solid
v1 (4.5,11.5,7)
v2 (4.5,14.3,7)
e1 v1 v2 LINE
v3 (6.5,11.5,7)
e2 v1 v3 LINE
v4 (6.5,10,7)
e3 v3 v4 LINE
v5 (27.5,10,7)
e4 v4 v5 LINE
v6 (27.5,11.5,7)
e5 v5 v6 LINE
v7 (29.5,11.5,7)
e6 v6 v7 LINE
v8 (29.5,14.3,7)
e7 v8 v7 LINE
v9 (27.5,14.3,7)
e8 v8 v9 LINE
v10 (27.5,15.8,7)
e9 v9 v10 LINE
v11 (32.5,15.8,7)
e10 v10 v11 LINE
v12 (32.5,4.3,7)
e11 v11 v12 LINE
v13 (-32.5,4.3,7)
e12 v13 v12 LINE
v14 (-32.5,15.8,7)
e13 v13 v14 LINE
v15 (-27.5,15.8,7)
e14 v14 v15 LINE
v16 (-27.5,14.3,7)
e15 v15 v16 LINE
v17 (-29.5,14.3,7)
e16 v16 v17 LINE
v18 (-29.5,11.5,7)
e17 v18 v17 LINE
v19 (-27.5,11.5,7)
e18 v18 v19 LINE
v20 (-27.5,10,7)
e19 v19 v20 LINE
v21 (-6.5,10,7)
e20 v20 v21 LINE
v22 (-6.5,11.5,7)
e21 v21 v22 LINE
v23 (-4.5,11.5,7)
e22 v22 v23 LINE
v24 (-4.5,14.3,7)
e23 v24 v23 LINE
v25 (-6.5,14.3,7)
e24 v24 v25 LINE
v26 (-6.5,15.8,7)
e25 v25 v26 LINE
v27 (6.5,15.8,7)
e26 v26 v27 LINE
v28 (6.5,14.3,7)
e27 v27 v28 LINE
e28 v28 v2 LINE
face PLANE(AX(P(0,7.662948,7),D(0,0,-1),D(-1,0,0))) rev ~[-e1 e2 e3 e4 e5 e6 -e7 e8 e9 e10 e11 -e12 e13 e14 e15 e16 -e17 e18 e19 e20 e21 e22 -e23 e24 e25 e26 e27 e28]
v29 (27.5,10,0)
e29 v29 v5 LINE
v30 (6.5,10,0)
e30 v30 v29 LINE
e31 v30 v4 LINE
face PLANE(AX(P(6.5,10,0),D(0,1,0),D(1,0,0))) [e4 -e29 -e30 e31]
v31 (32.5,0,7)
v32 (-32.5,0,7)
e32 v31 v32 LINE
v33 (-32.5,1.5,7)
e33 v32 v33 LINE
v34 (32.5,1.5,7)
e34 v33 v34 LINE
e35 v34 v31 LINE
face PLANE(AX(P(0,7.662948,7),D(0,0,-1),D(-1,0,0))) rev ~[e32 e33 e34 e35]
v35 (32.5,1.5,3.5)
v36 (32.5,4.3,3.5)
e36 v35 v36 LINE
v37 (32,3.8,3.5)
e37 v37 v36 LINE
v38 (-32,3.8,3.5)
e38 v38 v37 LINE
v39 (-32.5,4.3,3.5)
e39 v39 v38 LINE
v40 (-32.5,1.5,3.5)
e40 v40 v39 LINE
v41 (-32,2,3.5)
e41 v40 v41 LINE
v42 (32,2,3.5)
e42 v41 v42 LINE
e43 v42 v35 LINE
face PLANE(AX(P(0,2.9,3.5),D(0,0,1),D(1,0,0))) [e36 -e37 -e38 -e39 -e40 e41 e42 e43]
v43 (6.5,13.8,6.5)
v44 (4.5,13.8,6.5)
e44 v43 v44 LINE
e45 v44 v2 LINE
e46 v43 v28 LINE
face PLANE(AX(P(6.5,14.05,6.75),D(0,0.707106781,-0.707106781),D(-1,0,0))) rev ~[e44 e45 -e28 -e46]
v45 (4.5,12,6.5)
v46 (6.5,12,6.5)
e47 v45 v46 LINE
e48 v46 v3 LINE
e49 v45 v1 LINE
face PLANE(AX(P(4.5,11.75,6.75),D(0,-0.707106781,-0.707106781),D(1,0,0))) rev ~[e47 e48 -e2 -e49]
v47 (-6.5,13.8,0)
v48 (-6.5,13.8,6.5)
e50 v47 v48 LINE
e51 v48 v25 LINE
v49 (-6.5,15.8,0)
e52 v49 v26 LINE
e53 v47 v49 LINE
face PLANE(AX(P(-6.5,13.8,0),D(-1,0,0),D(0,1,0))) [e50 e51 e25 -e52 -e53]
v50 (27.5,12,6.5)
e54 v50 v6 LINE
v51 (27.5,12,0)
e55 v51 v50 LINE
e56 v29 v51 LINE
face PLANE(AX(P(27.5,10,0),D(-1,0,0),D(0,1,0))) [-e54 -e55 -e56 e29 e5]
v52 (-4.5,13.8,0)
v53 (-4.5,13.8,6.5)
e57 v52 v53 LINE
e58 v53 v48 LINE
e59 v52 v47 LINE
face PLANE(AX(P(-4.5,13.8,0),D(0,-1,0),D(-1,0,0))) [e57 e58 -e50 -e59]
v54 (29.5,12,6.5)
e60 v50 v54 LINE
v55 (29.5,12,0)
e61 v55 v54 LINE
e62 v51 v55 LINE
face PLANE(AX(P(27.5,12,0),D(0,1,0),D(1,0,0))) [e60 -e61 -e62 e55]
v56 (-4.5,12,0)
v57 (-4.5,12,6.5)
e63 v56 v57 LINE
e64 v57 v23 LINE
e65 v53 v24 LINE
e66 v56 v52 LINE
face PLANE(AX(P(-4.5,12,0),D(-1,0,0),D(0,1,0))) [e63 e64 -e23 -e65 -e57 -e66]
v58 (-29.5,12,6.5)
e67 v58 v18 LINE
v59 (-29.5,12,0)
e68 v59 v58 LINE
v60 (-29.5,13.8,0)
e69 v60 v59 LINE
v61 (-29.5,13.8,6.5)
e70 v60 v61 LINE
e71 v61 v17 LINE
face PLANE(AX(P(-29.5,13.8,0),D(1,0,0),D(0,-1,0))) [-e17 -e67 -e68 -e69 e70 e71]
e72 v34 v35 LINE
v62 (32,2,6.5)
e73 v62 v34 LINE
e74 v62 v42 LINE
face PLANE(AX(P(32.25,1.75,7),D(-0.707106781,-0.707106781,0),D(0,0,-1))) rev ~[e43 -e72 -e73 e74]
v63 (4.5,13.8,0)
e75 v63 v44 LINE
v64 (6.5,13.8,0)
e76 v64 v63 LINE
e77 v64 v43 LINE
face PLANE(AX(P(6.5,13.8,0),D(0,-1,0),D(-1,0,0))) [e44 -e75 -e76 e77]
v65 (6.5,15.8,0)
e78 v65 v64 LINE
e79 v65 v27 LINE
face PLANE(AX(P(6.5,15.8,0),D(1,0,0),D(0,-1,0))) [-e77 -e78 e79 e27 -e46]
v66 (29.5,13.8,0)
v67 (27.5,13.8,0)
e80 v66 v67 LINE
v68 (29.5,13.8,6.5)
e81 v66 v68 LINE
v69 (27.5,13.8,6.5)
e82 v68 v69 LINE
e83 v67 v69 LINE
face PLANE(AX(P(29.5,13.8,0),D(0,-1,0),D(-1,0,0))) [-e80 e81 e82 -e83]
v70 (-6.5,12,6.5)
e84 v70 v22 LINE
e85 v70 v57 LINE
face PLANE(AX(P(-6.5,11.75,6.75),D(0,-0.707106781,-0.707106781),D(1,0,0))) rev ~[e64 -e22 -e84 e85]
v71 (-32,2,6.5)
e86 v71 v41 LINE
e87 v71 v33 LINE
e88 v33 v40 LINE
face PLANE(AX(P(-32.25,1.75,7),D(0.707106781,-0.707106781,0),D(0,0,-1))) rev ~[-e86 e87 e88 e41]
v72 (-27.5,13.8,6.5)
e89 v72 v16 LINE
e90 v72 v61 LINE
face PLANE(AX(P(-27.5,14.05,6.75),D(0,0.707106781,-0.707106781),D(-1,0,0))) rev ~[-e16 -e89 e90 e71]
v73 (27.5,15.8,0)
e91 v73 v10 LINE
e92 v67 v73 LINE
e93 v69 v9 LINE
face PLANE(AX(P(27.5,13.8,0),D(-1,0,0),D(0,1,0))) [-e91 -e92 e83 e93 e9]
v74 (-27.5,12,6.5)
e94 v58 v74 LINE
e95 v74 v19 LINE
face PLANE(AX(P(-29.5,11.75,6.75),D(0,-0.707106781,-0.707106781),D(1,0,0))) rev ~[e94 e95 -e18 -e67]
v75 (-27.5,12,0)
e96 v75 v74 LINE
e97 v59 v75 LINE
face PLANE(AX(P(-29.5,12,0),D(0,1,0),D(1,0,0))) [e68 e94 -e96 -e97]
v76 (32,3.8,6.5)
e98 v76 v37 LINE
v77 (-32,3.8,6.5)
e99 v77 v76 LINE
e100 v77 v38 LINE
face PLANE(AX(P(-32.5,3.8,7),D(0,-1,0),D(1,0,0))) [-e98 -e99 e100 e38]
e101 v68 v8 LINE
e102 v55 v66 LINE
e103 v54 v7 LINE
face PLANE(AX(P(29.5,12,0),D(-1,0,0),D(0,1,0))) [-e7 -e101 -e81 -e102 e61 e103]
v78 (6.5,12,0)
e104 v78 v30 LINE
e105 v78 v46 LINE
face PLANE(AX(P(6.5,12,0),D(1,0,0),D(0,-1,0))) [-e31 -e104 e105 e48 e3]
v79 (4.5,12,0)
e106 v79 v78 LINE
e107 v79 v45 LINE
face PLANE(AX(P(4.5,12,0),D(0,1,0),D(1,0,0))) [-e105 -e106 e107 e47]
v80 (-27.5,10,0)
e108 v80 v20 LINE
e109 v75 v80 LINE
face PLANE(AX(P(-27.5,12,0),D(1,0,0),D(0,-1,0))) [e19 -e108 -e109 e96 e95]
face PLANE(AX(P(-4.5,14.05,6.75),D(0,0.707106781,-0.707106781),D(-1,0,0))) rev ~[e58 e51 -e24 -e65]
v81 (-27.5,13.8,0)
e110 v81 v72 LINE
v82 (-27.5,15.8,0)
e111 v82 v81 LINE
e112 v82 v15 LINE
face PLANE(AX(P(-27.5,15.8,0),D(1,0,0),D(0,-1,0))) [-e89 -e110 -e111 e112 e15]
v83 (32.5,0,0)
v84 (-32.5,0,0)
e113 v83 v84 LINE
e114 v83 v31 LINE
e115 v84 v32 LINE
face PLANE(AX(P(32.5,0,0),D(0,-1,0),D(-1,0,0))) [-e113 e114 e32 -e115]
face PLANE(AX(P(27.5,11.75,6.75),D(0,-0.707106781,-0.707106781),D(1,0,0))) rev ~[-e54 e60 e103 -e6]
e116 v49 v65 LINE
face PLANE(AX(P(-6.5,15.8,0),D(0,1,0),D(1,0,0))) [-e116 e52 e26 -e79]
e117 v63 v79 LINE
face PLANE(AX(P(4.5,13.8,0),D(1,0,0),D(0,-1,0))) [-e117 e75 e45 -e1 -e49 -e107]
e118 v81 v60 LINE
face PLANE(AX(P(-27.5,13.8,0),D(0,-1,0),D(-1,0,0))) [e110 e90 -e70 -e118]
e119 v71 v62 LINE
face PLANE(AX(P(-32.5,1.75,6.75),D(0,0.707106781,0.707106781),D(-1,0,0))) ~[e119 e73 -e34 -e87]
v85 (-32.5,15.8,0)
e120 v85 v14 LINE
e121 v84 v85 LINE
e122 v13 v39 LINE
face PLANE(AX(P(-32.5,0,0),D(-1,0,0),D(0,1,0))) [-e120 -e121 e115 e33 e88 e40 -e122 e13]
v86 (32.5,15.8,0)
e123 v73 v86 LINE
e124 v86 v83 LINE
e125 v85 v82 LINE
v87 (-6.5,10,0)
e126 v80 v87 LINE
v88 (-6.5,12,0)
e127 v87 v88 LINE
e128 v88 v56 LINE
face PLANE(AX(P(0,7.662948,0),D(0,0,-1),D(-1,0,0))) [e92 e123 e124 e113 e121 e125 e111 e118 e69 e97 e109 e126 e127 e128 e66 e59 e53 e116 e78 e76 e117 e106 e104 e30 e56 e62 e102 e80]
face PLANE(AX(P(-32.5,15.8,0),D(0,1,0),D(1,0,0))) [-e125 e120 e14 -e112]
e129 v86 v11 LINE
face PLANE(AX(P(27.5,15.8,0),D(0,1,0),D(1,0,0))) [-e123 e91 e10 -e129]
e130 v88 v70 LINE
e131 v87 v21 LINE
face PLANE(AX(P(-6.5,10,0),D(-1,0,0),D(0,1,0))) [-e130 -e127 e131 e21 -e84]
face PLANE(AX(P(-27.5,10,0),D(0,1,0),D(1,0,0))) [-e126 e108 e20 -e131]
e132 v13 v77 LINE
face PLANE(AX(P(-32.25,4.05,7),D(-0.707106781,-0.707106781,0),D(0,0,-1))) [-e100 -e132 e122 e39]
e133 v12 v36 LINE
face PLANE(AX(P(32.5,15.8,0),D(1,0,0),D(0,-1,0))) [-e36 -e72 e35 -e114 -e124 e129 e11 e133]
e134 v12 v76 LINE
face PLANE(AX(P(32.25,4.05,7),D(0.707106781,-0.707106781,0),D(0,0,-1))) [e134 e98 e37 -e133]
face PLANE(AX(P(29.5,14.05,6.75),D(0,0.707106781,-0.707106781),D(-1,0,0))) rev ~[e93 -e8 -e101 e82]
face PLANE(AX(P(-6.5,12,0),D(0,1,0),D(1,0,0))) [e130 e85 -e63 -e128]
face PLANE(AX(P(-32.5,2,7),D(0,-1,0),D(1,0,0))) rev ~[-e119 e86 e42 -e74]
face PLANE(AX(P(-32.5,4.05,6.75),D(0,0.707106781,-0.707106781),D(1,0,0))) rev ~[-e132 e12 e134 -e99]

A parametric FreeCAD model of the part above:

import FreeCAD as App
import Part
import Sketcher
from FreeCAD import Vector


def edges_at(feature, points):
    """Names of the edges that pass closest to the given points."""
    edges = feature.Shape.Edges
    near = lambda p: min(range(len(edges)), key=lambda i: edges[i].distToShape(Part.Vertex(*p))[0])
    return sorted({f"Edge{near(p) + 1}" for p in points})


def add_polygon(sketch, points):
    """Adds a closed chain of lines whose ends are joined by coincident constraints."""
    first, n = sketch.GeometryCount, len(points)
    for a, b in zip(points, points[1:] + points[:1]):
        sketch.addGeometry(Part.LineSegment(App.Vector(*a, 0), App.Vector(*b, 0)), False)
    for i in range(n):
        sketch.addConstraint(Sketcher.Constraint("Coincident", first + i, 2, first + (i + 1) % n, 1))

doc = App.newDocument("Part")
body = doc.addObject("PartDesign::Body", "Body")

# Sketch on XY plane
sketch1 = doc.addObject("Sketcher::SketchObject", "Sketch")
body.addObject(sketch1)
sketch1.AttachmentSupport = (doc.XY_Plane, [""])
sketch1.MapMode = "FlatFace"
add_polygon(sketch1, [(-32.5, 15.8), (-32.5, 0), (32.5, 0), (32.5, 15.8), (27.5, 15.8), (27.5, 13.8), (29.5, 13.8), (29.5, 12), (27.5, 12), (27.5, 10), (6.5, 10), (6.5, 12), (4.5, 12), (4.5, 13.8), (6.5, 13.8), (6.5, 15.8), (-6.5, 15.8), (-6.5, 13.8), (-4.5, 13.8), (-4.5, 12), (-6.5, 12), (-6.5, 10), (-27.5, 10), (-27.5, 12), (-29.5, 12), (-29.5, 13.8), (-27.5, 13.8), (-27.5, 15.8)])  # lines 0-27
sketch1.addConstraint([
    Sketcher.Constraint("Vertical", 0),
    Sketcher.Constraint("Horizontal", 1),
    Sketcher.Constraint("Vertical", 2),
    Sketcher.Constraint("Horizontal", 3),
    Sketcher.Constraint("Vertical", 4),
    Sketcher.Constraint("Horizontal", 5),
    Sketcher.Constraint("Vertical", 6),
    Sketcher.Constraint("Horizontal", 7),
    Sketcher.Constraint("Vertical", 8),
    Sketcher.Constraint("Horizontal", 9),
    Sketcher.Constraint("Vertical", 10),
    Sketcher.Constraint("Horizontal", 11),
    Sketcher.Constraint("Vertical", 12),
    Sketcher.Constraint("Horizontal", 13),
    Sketcher.Constraint("Vertical", 14),
    Sketcher.Constraint("Horizontal", 15),
    Sketcher.Constraint("Vertical", 16),
    Sketcher.Constraint("Horizontal", 17),
    Sketcher.Constraint("Vertical", 18),
    Sketcher.Constraint("Horizontal", 19),
    Sketcher.Constraint("Vertical", 20),
    Sketcher.Constraint("Horizontal", 21),
    Sketcher.Constraint("Vertical", 22),
    Sketcher.Constraint("Horizontal", 23),
    Sketcher.Constraint("Vertical", 24),
    Sketcher.Constraint("Horizontal", 25),
    Sketcher.Constraint("Vertical", 26),
    Sketcher.Constraint("Horizontal", 27),
    Sketcher.Constraint("Symmetric", 0, 2, 1, 2, -1, 1),
    Sketcher.Constraint("Symmetric", 13, 2, 16, 2, -2),
    Sketcher.Constraint("Symmetric", 11, 2, 18, 2, -2),
    Sketcher.Constraint("Symmetric", 9, 2, 20, 2, -2),
    Sketcher.Constraint("Symmetric", 7, 2, 22, 2, -2),
    Sketcher.Constraint("Symmetric", 5, 2, 24, 2, -2),
    Sketcher.Constraint("Symmetric", 3, 2, 26, 2, -2),
    Sketcher.Constraint("Horizontal", 7, 2, 10, 2),
    Sketcher.Constraint("Horizontal", 5, 2, 12, 2),
    Sketcher.Constraint("Horizontal", 3, 2, 14, 2),
    Sketcher.Constraint("Vertical", 4, 2, 7, 2),
    Sketcher.Constraint("Vertical", 10, 2, 13, 2),
    Sketcher.Constraint("Equal", 7, 11),
    Sketcher.Constraint("Equal", 25, 4),
    Sketcher.Constraint("Equal", 4, 8),
    Sketcher.Constraint("DistanceX", 1, 1, 1, 2, 65.0),
    Sketcher.Constraint("DistanceX", 3, 2, 3, 1, 5.0),
    Sketcher.Constraint("DistanceX", 5, 1, 5, 2, 2.0),
    Sketcher.Constraint("DistanceX", 9, 2, 9, 1, 21.0),
    Sketcher.Constraint("DistanceY", 0, 2, 0, 1, 15.8),
    Sketcher.Constraint("DistanceY", 6, 2, 6, 1, 1.8),
])
pad1 = doc.addObject("PartDesign::Pad", "Pad")
body.addObject(pad1)
pad1.Profile = sketch1
pad1.Length = 7

# Sketch on XY plane
sketch2 = doc.addObject("Sketcher::SketchObject", "Sketch001")
body.addObject(sketch2)
sketch2.AttachmentSupport = (doc.XY_Plane, [""])
sketch2.MapMode = "FlatFace"
sketch2.AttachmentOffset = App.Placement(Vector(0, 0, 7), App.Rotation())
add_polygon(sketch2, [(-32.5, 3.8), (-32.5, 2), (32.5, 2), (32.5, 3.8)])  # lines 0-3
sketch2.addConstraint([
    Sketcher.Constraint("Vertical", 0),
    Sketcher.Constraint("Horizontal", 1),
    Sketcher.Constraint("Vertical", 2),
    Sketcher.Constraint("Horizontal", 3),
    Sketcher.Constraint("DistanceX", 1, 1, 1, 2, 65.0),
    Sketcher.Constraint("DistanceY", 0, 2, 0, 1, 1.8),
    Sketcher.Constraint("DistanceY", -1, 1, 0, 2, 2.0),
    Sketcher.Constraint("DistanceX", 0, 2, -1, 1, 32.5),
])
pocket1 = doc.addObject("PartDesign::Pocket", "Pocket")
body.addObject(pocket1)
pocket1.Profile = sketch2
pocket1.Length = 3.5
doc.recompute()

chamfer = doc.addObject("PartDesign::Chamfer", "Chamfer")
body.addObject(chamfer)
chamfer.Base = (pocket1, edges_at(pocket1, [
    (0, 2, 7),
    (0, 3.8, 7),
    (-32.5, 2, 5.25),
    (-32.5, 3.8, 5.25),
    (32.5, 2, 5.25),
    (32.5, 3.8, 5.25),
]))
chamfer.Size = 0.5
doc.recompute()

chamfer2 = doc.addObject("PartDesign::Chamfer", "Chamfer001")
body.addObject(chamfer2)
chamfer2.Base = (chamfer, edges_at(chamfer, [
    (-28.5, 12, 7),
    (-28.5, 13.8, 7),
    (-5.5, 12, 7),
    (-5.5, 13.8, 7),
    (5.5, 12, 7),
    (5.5, 13.8, 7),
    (28.5, 12, 7),
    (28.5, 13.8, 7),
]))
chamfer2.Size = 0.5

doc.recompute()
